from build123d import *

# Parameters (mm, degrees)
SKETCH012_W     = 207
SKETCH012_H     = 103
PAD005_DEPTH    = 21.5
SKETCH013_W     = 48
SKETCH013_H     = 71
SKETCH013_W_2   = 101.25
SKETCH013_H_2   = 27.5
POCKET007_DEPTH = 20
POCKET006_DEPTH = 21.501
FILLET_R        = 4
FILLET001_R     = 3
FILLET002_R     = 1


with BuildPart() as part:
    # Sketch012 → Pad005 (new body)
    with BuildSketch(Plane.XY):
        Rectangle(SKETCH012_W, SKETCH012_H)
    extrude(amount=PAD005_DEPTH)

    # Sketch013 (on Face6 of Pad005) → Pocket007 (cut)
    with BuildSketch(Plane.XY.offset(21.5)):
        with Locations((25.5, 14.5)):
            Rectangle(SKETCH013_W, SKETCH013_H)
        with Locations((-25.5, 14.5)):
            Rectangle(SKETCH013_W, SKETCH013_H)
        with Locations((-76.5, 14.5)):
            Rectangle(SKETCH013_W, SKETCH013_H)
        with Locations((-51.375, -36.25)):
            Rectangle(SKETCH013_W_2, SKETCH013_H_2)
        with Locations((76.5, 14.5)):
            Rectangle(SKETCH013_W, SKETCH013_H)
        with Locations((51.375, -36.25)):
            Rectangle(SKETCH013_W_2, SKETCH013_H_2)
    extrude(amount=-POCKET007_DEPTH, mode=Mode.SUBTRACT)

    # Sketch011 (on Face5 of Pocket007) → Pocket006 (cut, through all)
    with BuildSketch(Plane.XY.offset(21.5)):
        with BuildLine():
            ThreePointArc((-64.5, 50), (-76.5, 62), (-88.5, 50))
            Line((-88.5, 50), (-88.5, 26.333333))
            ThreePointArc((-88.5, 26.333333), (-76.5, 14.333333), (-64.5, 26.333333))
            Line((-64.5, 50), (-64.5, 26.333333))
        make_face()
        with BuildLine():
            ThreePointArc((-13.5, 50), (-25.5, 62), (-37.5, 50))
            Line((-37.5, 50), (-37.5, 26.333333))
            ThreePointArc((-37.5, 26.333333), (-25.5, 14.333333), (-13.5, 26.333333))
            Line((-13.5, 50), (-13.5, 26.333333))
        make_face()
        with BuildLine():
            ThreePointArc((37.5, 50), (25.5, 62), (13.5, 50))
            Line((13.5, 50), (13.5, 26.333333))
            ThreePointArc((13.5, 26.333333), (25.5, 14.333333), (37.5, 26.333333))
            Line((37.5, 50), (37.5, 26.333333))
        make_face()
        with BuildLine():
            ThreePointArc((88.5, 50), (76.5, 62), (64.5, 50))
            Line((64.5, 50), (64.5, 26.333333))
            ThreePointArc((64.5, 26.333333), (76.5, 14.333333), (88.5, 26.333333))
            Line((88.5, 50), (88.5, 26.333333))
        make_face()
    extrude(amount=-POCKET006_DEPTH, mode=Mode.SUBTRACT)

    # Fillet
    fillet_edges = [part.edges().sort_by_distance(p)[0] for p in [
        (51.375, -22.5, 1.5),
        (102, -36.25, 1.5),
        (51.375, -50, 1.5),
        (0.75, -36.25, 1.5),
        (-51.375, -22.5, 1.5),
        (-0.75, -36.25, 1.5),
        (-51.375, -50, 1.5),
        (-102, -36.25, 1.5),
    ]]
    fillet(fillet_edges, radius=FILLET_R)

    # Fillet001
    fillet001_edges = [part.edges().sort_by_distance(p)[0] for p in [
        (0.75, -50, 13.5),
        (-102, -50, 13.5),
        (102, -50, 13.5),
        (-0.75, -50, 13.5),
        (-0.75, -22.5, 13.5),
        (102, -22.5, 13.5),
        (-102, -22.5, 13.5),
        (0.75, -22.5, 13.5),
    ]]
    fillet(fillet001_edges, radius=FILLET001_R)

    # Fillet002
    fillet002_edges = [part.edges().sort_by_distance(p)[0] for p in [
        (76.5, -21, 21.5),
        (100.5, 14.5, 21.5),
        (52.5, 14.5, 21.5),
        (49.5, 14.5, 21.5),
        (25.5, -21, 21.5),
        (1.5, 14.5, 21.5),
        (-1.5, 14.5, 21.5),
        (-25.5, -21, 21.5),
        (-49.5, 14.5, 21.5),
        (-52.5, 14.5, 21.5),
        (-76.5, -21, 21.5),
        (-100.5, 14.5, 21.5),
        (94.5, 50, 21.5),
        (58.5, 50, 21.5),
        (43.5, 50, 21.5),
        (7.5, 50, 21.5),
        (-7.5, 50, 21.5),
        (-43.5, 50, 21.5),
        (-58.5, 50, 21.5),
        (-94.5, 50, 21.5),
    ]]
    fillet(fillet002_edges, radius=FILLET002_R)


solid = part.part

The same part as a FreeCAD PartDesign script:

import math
import FreeCAD as App
import Part
import Sketcher


def edges_at(feature, points):
    """Names of the edges that pass closest to the given points."""
    edges = feature.Shape.Edges
    near = lambda p: min(range(len(edges)), key=lambda i: edges[i].distToShape(Part.Vertex(*p))[0])
    return sorted({f"Edge{near(p) + 1}" for p in points})

doc = App.newDocument("Part")
params = doc.addObject("Spreadsheet::Sheet", "Params")
for row, (alias, value) in enumerate([
    ("sketch1_width", "207 mm"),
    ("sketch1_height", "103 mm"),
    ("pad1_length", "21.5 mm"),
    ("sketch2_width", "48 mm"),
    ("sketch2_height", "71 mm"),
    ("sketch2_height2", "27.5 mm"),
    ("sketch2_width2", "101.25 mm"),
    ("pocket1_length", "20 mm"),
    ("sketch3_radius", "12 mm"),
    ("fillet_radius", "4 mm"),
    ("fillet2_radius", "3 mm"),
    ("fillet3_radius", "1 mm"),
], start=1):
    params.set(f"A{row}", alias)
    params.set(f"B{row}", "=" + value)
    params.setAlias(f"B{row}", alias)

body = doc.addObject("PartDesign::Body", "Body")

# Sketch on XY plane
sketch1 = body.newObject("Sketcher::SketchObject", "Sketch")
sketch1.AttachmentSupport = (doc.getObject("XY_Plane"), [""])
sketch1.MapMode = "FlatFace"
sketch1.addGeometry([
    Part.LineSegment(App.Vector(-103.5, 51.5, 0), App.Vector(-103.5, -51.5, 0)),
    Part.LineSegment(App.Vector(-103.5, -51.5, 0), App.Vector(103.5, -51.5, 0)),
    Part.LineSegment(App.Vector(103.5, -51.5, 0), App.Vector(103.5, 51.5, 0)),
    Part.LineSegment(App.Vector(103.5, 51.5, 0), App.Vector(-103.5, 51.5, 0)),
], False)
sketch1.addConstraint([
    Sketcher.Constraint("Coincident", 0, 2, 1, 1),
    Sketcher.Constraint("Coincident", 1, 2, 2, 1),
    Sketcher.Constraint("Coincident", 2, 2, 3, 1),
    Sketcher.Constraint("Coincident", 3, 2, 0, 1),
    Sketcher.Constraint("Vertical", 0),
    Sketcher.Constraint("Horizontal", 1),
    Sketcher.Constraint("Vertical", 2),
    Sketcher.Constraint("Horizontal", 3),
    Sketcher.Constraint("Symmetric", 0, 2, 2, 2, -1, 1),
    Sketcher.Constraint("DistanceX", 1, 1, 1, 2, 207.0),
    Sketcher.Constraint("DistanceY", 0, 2, 0, 1, 103.0),
])
sketch1.setExpression("Constraints[9]", "Params.sketch1_width")
sketch1.setExpression("Constraints[10]", "Params.sketch1_height")
pad1 = body.newObject("PartDesign::Pad", "Pad")
pad1.Profile = sketch1
pad1.setExpression("Length", "Params.pad1_length")

# Sketch on XY plane
sketch2 = body.newObject("Sketcher::SketchObject", "Sketch001")
sketch2.AttachmentSupport = (doc.getObject("XY_Plane"), [""])
sketch2.MapMode = "FlatFace"
sketch2.AttachmentOffset = App.Placement(App.Vector(0, 0, 21.5), App.Rotation())
sketch2.addGeometry([
    Part.LineSegment(App.Vector(1.5, 50, 0), App.Vector(1.5, -21, 0)),  # 0
    Part.LineSegment(App.Vector(1.5, -21, 0), App.Vector(49.5, -21, 0)),  # 1
    Part.LineSegment(App.Vector(49.5, -21, 0), App.Vector(49.5, 50, 0)),  # 2
    Part.LineSegment(App.Vector(49.5, 50, 0), App.Vector(1.5, 50, 0)),  # 3
    Part.LineSegment(App.Vector(-49.5, 50, 0), App.Vector(-49.5, -21, 0)),  # 4
    Part.LineSegment(App.Vector(-49.5, -21, 0), App.Vector(-1.5, -21, 0)),  # 5
    Part.LineSegment(App.Vector(-1.5, -21, 0), App.Vector(-1.5, 50, 0)),  # 6
    Part.LineSegment(App.Vector(-1.5, 50, 0), App.Vector(-49.5, 50, 0)),  # 7
    Part.LineSegment(App.Vector(-100.5, 50, 0), App.Vector(-100.5, -21, 0)),  # 8
    Part.LineSegment(App.Vector(-100.5, -21, 0), App.Vector(-52.5, -21, 0)),  # 9
    Part.LineSegment(App.Vector(-52.5, -21, 0), App.Vector(-52.5, 50, 0)),  # 10
    Part.LineSegment(App.Vector(-52.5, 50, 0), App.Vector(-100.5, 50, 0)),  # 11
    Part.LineSegment(App.Vector(-102, -22.5, 0), App.Vector(-102, -50, 0)),  # 12
    Part.LineSegment(App.Vector(-102, -50, 0), App.Vector(-0.75, -50, 0)),  # 13
    Part.LineSegment(App.Vector(-0.75, -50, 0), App.Vector(-0.75, -22.5, 0)),  # 14
    Part.LineSegment(App.Vector(-0.75, -22.5, 0), App.Vector(-102, -22.5, 0)),  # 15
    Part.LineSegment(App.Vector(52.5, 50, 0), App.Vector(52.5, -21, 0)),  # 16
    Part.LineSegment(App.Vector(52.5, -21, 0), App.Vector(100.5, -21, 0)),  # 17
    Part.LineSegment(App.Vector(100.5, -21, 0), App.Vector(100.5, 50, 0)),  # 18
    Part.LineSegment(App.Vector(100.5, 50, 0), App.Vector(52.5, 50, 0)),  # 19
    Part.LineSegment(App.Vector(0.75, -22.5, 0), App.Vector(0.75, -50, 0)),  # 20
    Part.LineSegment(App.Vector(0.75, -50, 0), App.Vector(102, -50, 0)),  # 21
    Part.LineSegment(App.Vector(102, -50, 0), App.Vector(102, -22.5, 0)),  # 22
    Part.LineSegment(App.Vector(102, -22.5, 0), App.Vector(0.75, -22.5, 0)),  # 23
], False)
sketch2.addConstraint([
    Sketcher.Constraint("Coincident", 0, 2, 1, 1),
    Sketcher.Constraint("Coincident", 1, 2, 2, 1),
    Sketcher.Constraint("Coincident", 2, 2, 3, 1),
    Sketcher.Constraint("Coincident", 3, 2, 0, 1),
    Sketcher.Constraint("Coincident", 4, 2, 5, 1),
    Sketcher.Constraint("Coincident", 5, 2, 6, 1),
    Sketcher.Constraint("Coincident", 6, 2, 7, 1),
    Sketcher.Constraint("Coincident", 7, 2, 4, 1),
    Sketcher.Constraint("Coincident", 8, 2, 9, 1),
    Sketcher.Constraint("Coincident", 9, 2, 10, 1),
    Sketcher.Constraint("Coincident", 10, 2, 11, 1),
    Sketcher.Constraint("Coincident", 11, 2, 8, 1),
    Sketcher.Constraint("Coincident", 12, 2, 13, 1),
    Sketcher.Constraint("Coincident", 13, 2, 14, 1),
    Sketcher.Constraint("Coincident", 14, 2, 15, 1),
    Sketcher.Constraint("Coincident", 15, 2, 12, 1),
    Sketcher.Constraint("Coincident", 16, 2, 17, 1),
    Sketcher.Constraint("Coincident", 17, 2, 18, 1),
    Sketcher.Constraint("Coincident", 18, 2, 19, 1),
    Sketcher.Constraint("Coincident", 19, 2, 16, 1),
    Sketcher.Constraint("Coincident", 20, 2, 21, 1),
    Sketcher.Constraint("Coincident", 21, 2, 22, 1),
    Sketcher.Constraint("Coincident", 22, 2, 23, 1),
    Sketcher.Constraint("Coincident", 23, 2, 20, 1),
    Sketcher.Constraint("Vertical", 0),
    Sketcher.Constraint("Horizontal", 1),
    Sketcher.Constraint("Vertical", 2),
    Sketcher.Constraint("Horizontal", 3),
    Sketcher.Constraint("Vertical", 4),
    Sketcher.Constraint("Horizontal", 5),
    Sketcher.Constraint("Vertical", 6),
    Sketcher.Constraint("Horizontal", 7),
    Sketcher.Constraint("Vertical", 8),
    Sketcher.Constraint("Horizontal", 9),
    Sketcher.Constraint("Vertical", 10),
    Sketcher.Constraint("Horizontal", 11),
    Sketcher.Constraint("Vertical", 12),
    Sketcher.Constraint("Horizontal", 13),
    Sketcher.Constraint("Vertical", 14),
    Sketcher.Constraint("Horizontal", 15),
    Sketcher.Constraint("Vertical", 16),
    Sketcher.Constraint("Horizontal", 17),
    Sketcher.Constraint("Vertical", 18),
    Sketcher.Constraint("Horizontal", 19),
    Sketcher.Constraint("Vertical", 20),
    Sketcher.Constraint("Horizontal", 21),
    Sketcher.Constraint("Vertical", 22),
    Sketcher.Constraint("Horizontal", 23),
    Sketcher.Constraint("Symmetric", 1, 2, 4, 2, -2),
    Sketcher.Constraint("Symmetric", 3, 2, 6, 2, -2),
    Sketcher.Constraint("Symmetric", 9, 2, 16, 2, -2),
    Sketcher.Constraint("Symmetric", 11, 2, 18, 2, -2),
    Sketcher.Constraint("Symmetric", 13, 2, 20, 2, -2),
    Sketcher.Constraint("Symmetric", 15, 2, 22, 2, -2),
    Sketcher.Constraint("Horizontal", 5, 2, 8, 2),
    Sketcher.Constraint("Horizontal", 7, 2, 10, 2),
    Sketcher.Constraint("Equal", 7, 9),
    Sketcher.Constraint("DistanceX", 1, 1, 1, 2, 48.0),
    Sketcher.Constraint("DistanceY", 0, 2, 0, 1, 71.0),
    Sketcher.Constraint("DistanceY", 12, 2, 12, 1, 27.5),
    Sketcher.Constraint("DistanceY", 0, 2, -1, 1, 21.0),
    Sketcher.Constraint("DistanceX", 12, 2, -1, 1, 102.0),
    Sketcher.Constraint("DistanceY", 12, 2, -1, 1, 50.0),
    Sketcher.Constraint("DistanceX", 4, 2, 0, 2, 51.0),
    Sketcher.Constraint("DistanceX", 8, 2, 4, 2, 51.0),
    Sketcher.Constraint("DistanceX", 13, 1, 13, 2, 101.25),
])
sketch2.setExpression("Constraints[57]", "Params.sketch2_width")
sketch2.setExpression("Constraints[58]", "Params.sketch2_height")
sketch2.setExpression("Constraints[59]", "Params.sketch2_height2")
sketch2.setExpression("Constraints[65]", "Params.sketch2_width2")
pocket1 = body.newObject("PartDesign::Pocket", "Pocket")
pocket1.Profile = sketch2
pocket1.setExpression("Length", "Params.pocket1_length")

# Sketch on XY plane
sketch3 = body.newObject("Sketcher::SketchObject", "Sketch002")
sketch3.AttachmentSupport = (doc.getObject("XY_Plane"), [""])
sketch3.MapMode = "FlatFace"
sketch3.AttachmentOffset = App.Placement(App.Vector(0, 0, 21.5), App.Rotation())
sketch3.addGeometry([
    Part.ArcOfCircle(Part.Circle(App.Vector(-76.5, 50, 0), App.Vector(0, 0, 1), 12), math.radians(0), math.radians(180)),  # 0
    Part.LineSegment(App.Vector(-88.5, 50, 0), App.Vector(-88.5, 26.333333, 0)),  # 1
    Part.ArcOfCircle(Part.Circle(App.Vector(-76.5, 26.333333, 0), App.Vector(0, 0, 1), 12), math.radians(180), math.radians(360)),  # 2
    Part.LineSegment(App.Vector(-64.5, 26.333333, 0), App.Vector(-64.5, 50, 0)),  # 3
    Part.ArcOfCircle(Part.Circle(App.Vector(-25.5, 50, 0), App.Vector(0, 0, 1), 12), math.radians(0), math.radians(180)),  # 4
    Part.LineSegment(App.Vector(-37.5, 50, 0), App.Vector(-37.5, 26.333333, 0)),  # 5
    Part.ArcOfCircle(Part.Circle(App.Vector(-25.5, 26.333333, 0), App.Vector(0, 0, 1), 12), math.radians(180), math.radians(360)),  # 6
    Part.LineSegment(App.Vector(-13.5, 26.333333, 0), App.Vector(-13.5, 50, 0)),  # 7
    Part.ArcOfCircle(Part.Circle(App.Vector(25.5, 50, 0), App.Vector(0, 0, 1), 12), math.radians(0), math.radians(180)),  # 8
    Part.LineSegment(App.Vector(13.5, 50, 0), App.Vector(13.5, 26.333333, 0)),  # 9
    Part.ArcOfCircle(Part.Circle(App.Vector(25.5, 26.333333, 0), App.Vector(0, 0, 1), 12), math.radians(180), math.radians(360)),  # 10
    Part.LineSegment(App.Vector(37.5, 26.333333, 0), App.Vector(37.5, 50, 0)),  # 11
    Part.ArcOfCircle(Part.Circle(App.Vector(76.5, 50, 0), App.Vector(0, 0, 1), 12), math.radians(0), math.radians(180)),  # 12
    Part.LineSegment(App.Vector(64.5, 50, 0), App.Vector(64.5, 26.333333, 0)),  # 13
    Part.ArcOfCircle(Part.Circle(App.Vector(76.5, 26.333333, 0), App.Vector(0, 0, 1), 12), math.radians(180), math.radians(360)),  # 14
    Part.LineSegment(App.Vector(88.5, 26.333333, 0), App.Vector(88.5, 50, 0)),  # 15
], False)
sketch3.addConstraint([
    Sketcher.Constraint("Tangent", 0, 2, 1, 1),
    Sketcher.Constraint("Tangent", 1, 2, 2, 1),
    Sketcher.Constraint("Tangent", 2, 2, 3, 1),
    Sketcher.Constraint("Tangent", 3, 2, 0, 1),
    Sketcher.Constraint("Tangent", 4, 2, 5, 1),
    Sketcher.Constraint("Tangent", 5, 2, 6, 1),
    Sketcher.Constraint("Tangent", 6, 2, 7, 1),
    Sketcher.Constraint("Tangent", 7, 2, 4, 1),
    Sketcher.Constraint("Tangent", 8, 2, 9, 1),
    Sketcher.Constraint("Tangent", 9, 2, 10, 1),
    Sketcher.Constraint("Tangent", 10, 2, 11, 1),
    Sketcher.Constraint("Tangent", 11, 2, 8, 1),
    Sketcher.Constraint("Tangent", 12, 2, 13, 1),
    Sketcher.Constraint("Tangent", 13, 2, 14, 1),
    Sketcher.Constraint("Tangent", 14, 2, 15, 1),
    Sketcher.Constraint("Tangent", 15, 2, 12, 1),
    Sketcher.Constraint("Vertical", 1),
    Sketcher.Constraint("Vertical", 3),
    Sketcher.Constraint("Vertical", 5),
    Sketcher.Constraint("Vertical", 7),
    Sketcher.Constraint("Vertical", 9),
    Sketcher.Constraint("Vertical", 11),
    Sketcher.Constraint("Vertical", 13),
    Sketcher.Constraint("Vertical", 15),
    Sketcher.Constraint("Equal", 2, 4),
    Sketcher.Constraint("Equal", 6, 8),
    Sketcher.Constraint("Equal", 10, 12),
    Sketcher.Constraint("Symmetric", 4, 3, 8, 3, -2),
    Sketcher.Constraint("Symmetric", 0, 3, 12, 3, -2),
    Sketcher.Constraint("Horizontal", 0, 3, 4, 3),
    Sketcher.Constraint("Horizontal", 2, 3, 6, 3),
    Sketcher.Constraint("Horizontal", 6, 3, 10, 3),
    Sketcher.Constraint("Horizontal", 10, 3, 14, 3),
    Sketcher.Constraint("Radius", 0, 12.0),
    Sketcher.Constraint("DistanceY", -1, 1, 0, 3, 50.0),
    Sketcher.Constraint("DistanceX", 0, 3, 4, 3, 51.0),
    Sketcher.Constraint("DistanceX", 4, 3, 8, 3, 51.0),
    Sketcher.Constraint("DistanceY", 1, 2, 1, 1, 23.666667),
])
sketch3.setExpression("Constraints[33]", "Params.sketch3_radius")
pocket2 = body.newObject("PartDesign::Pocket", "Pocket001")
pocket2.Profile = sketch3
pocket2.Type = "ThroughAll"
doc.recompute()

fillet = body.newObject("PartDesign::Fillet", "Fillet")
fillet.Base = (pocket2, edges_at(pocket2, [
    (51.375, -22.5, 1.5),
    (102, -36.25, 1.5),
    (51.375, -50, 1.5),
    (0.75, -36.25, 1.5),
    (-51.375, -22.5, 1.5),
    (-0.75, -36.25, 1.5),
    (-51.375, -50, 1.5),
    (-102, -36.25, 1.5),
]))
fillet.setExpression("Radius", "Params.fillet_radius")
doc.recompute()

fillet2 = body.newObject("PartDesign::Fillet", "Fillet001")
fillet2.Base = (fillet, edges_at(fillet, [
    (0.75, -50, 13.5),
    (-102, -50, 13.5),
    (102, -50, 13.5),
    (-0.75, -50, 13.5),
    (-0.75, -22.5, 13.5),
    (102, -22.5, 13.5),
    (-102, -22.5, 13.5),
    (0.75, -22.5, 13.5),
]))
fillet2.setExpression("Radius", "Params.fillet2_radius")
doc.recompute()

fillet3 = body.newObject("PartDesign::Fillet", "Fillet002")
fillet3.Base = (fillet2, edges_at(fillet2, [
    (76.5, -21, 21.5),
    (100.5, 14.5, 21.5),
    (52.5, 14.5, 21.5),
    (49.5, 14.5, 21.5),
    (25.5, -21, 21.5),
    (1.5, 14.5, 21.5),
    (-1.5, 14.5, 21.5),
    (-25.5, -21, 21.5),
    (-49.5, 14.5, 21.5),
    (-52.5, 14.5, 21.5),
    (-76.5, -21, 21.5),
    (-100.5, 14.5, 21.5),
    (94.5, 50, 21.5),
    (58.5, 50, 21.5),
    (43.5, 50, 21.5),
    (7.5, 50, 21.5),
    (-7.5, 50, 21.5),
    (-43.5, 50, 21.5),
    (-58.5, 50, 21.5),
    (-94.5, 50, 21.5),
]))
fillet3.setExpression("Radius", "Params.fillet3_radius")

doc.recompute()
